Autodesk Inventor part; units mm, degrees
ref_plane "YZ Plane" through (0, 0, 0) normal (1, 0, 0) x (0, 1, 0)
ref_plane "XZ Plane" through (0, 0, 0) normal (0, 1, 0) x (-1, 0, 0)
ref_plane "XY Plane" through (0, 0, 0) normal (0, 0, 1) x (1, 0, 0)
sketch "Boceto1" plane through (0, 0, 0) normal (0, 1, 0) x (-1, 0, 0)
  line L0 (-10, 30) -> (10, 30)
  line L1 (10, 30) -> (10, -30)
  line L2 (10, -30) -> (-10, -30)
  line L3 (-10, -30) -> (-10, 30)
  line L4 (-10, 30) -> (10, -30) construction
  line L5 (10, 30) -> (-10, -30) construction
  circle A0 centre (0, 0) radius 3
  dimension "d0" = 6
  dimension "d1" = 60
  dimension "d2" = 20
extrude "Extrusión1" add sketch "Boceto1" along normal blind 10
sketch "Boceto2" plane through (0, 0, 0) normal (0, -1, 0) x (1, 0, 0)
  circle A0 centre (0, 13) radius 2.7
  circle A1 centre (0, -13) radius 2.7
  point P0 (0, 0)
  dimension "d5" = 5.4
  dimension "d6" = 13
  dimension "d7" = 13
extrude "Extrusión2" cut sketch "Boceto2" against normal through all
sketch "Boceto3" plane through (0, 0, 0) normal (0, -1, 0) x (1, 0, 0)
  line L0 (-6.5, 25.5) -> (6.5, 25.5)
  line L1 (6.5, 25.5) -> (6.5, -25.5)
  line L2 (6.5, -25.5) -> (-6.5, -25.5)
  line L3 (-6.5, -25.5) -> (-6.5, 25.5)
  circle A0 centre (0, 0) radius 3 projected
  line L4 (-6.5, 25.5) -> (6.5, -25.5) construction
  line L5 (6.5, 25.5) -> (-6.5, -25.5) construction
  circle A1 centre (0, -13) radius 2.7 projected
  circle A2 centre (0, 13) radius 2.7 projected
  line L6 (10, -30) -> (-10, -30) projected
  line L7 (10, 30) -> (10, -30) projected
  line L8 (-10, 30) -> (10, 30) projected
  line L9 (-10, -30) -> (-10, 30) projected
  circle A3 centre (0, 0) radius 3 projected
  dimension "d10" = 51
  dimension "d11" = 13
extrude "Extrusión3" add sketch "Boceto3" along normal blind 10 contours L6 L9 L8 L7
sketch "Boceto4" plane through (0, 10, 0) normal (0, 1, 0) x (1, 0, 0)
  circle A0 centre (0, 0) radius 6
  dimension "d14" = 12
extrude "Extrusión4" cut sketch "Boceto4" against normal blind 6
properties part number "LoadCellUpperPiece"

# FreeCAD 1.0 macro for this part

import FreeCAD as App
import Part
import Sketcher

V = App.Vector
Q = App.Units.Quantity


def add_polygon(sketch, points):
    """Adds a closed chain of lines whose ends are joined by coincident constraints."""
    first, n = sketch.GeometryCount, len(points)
    for a, b in zip(points, points[1:] + points[:1]):
        sketch.addGeometry(Part.LineSegment(App.Vector(*a, 0), App.Vector(*b, 0)), False)
    for i in range(n):
        sketch.addConstraint(Sketcher.Constraint("Coincident", first + i, 2, first + (i + 1) % n, 1))

doc = App.newDocument("Part")
body = doc.addObject("PartDesign::Body", "Body")

# Sketch on XZ plane
sketch1 = body.newObject("Sketcher::SketchObject", "Sketch")
sketch1.AttachmentSupport = (doc.getObject("XZ_Plane"), [""])
sketch1.MapMode = "FlatFace"
add_polygon(sketch1, [(-10, 30), (10, 30), (10, -30), (-10, -30)])  # lines 0-3
sketch1.addGeometry(Part.Circle(V(0, 0, 0), V(0, 0, 1), 3), False)  # 4
sketch1.addConstraint([
    Sketcher.Constraint("Horizontal", 0),
    Sketcher.Constraint("Vertical", 1),
    Sketcher.Constraint("Horizontal", 2),
    Sketcher.Constraint("Vertical", 3),
    Sketcher.Constraint("Coincident", 4, 3, -1, 1),
    Sketcher.Constraint("Symmetric", 0, 2, 2, 2, -1, 1),
    Sketcher.Constraint("Diameter", 4, Q("6 mm")),
    Sketcher.Constraint("DistanceX", 0, 1, 0, 2, Q("20 mm")),
    Sketcher.Constraint("DistanceY", 1, 2, 1, 1, Q("60 mm")),
])
pad1 = body.newObject("PartDesign::Pad", "Pad")
pad1.Profile = sketch1
pad1.Length = 10
pad1.Reversed = True

# Sketch on XZ plane
sketch2 = body.newObject("Sketcher::SketchObject", "Sketch001")
sketch2.AttachmentSupport = (doc.getObject("XZ_Plane"), [""])
sketch2.MapMode = "FlatFace"
sketch2.addGeometry([
    Part.Circle(V(0, 13, 0), V(0, 0, 1), 2.7),
    Part.Circle(V(0, -13, 0), V(0, 0, 1), 2.7),
], False)
sketch2.addConstraint([
    Sketcher.Constraint("Equal", 0, 1),
    Sketcher.Constraint("Symmetric", 0, 3, 1, 3, -1, 1),
    Sketcher.Constraint("PointOnObject", 0, 3, -2),
    Sketcher.Constraint("Diameter", 0, Q("5.4 mm")),
    Sketcher.Constraint("DistanceY", -1, 1, 0, 3, Q("13 mm")),
])
pocket1 = body.newObject("PartDesign::Pocket", "Pocket")
pocket1.Profile = sketch2
pocket1.Type = "ThroughAll"

# Sketch on XZ plane
sketch3 = body.newObject("Sketcher::SketchObject", "Sketch002")
sketch3.AttachmentSupport = (doc.getObject("XZ_Plane"), [""])
sketch3.MapMode = "FlatFace"
add_polygon(sketch3, [(-10, -30), (10, -30), (10, 30), (-10, 30)])  # lines 0-3
add_polygon(sketch3, [(-6, -26), (-6, 26), (6, 26), (6, -26)])  # lines 4-7
sketch3.addConstraint([
    Sketcher.Constraint("Horizontal", 0),
    Sketcher.Constraint("Vertical", 1),
    Sketcher.Constraint("Horizontal", 2),
    Sketcher.Constraint("Vertical", 3),
    Sketcher.Constraint("Vertical", 4),
    Sketcher.Constraint("Horizontal", 5),
    Sketcher.Constraint("Vertical", 6),
    Sketcher.Constraint("Horizontal", 7),
    Sketcher.Constraint("Symmetric", 0, 2, 2, 2, -1, 1),
    Sketcher.Constraint("Symmetric", 4, 2, 6, 2, -1, 1),
    Sketcher.Constraint("DistanceX", 5, 1, 5, 2, Q("13 mm")),
    Sketcher.Constraint("DistanceY", 4, 1, 4, 2, Q("51 mm")),
    Sketcher.Constraint("DistanceX", 0, 1, 0, 2, Q("20 mm")),
    Sketcher.Constraint("DistanceY", 1, 1, 1, 2, Q("60 mm")),
])
pad2 = body.newObject("PartDesign::Pad", "Pad001")
pad2.Profile = sketch3
pad2.Length = 10

# Sketch on XZ plane
sketch4 = body.newObject("Sketcher::SketchObject", "Sketch003")
sketch4.AttachmentSupport = (doc.getObject("XZ_Plane"), [""])
sketch4.MapMode = "FlatFace"
sketch4.AttachmentOffset = App.Placement(V(0, 0, -10), App.Rotation())
sketch4.addGeometry(Part.Circle(V(0, 0, 0), V(0, 0, 1), 6), False)
sketch4.addConstraint([
    Sketcher.Constraint("Coincident", 0, 3, -1, 1),
    Sketcher.Constraint("Diameter", 0, Q("12 mm")),
])
pocket2 = body.newObject("PartDesign::Pocket", "Pocket001")
pocket2.Profile = sketch4
pocket2.Length = 6
pocket2.Reversed = True

doc.recompute()
